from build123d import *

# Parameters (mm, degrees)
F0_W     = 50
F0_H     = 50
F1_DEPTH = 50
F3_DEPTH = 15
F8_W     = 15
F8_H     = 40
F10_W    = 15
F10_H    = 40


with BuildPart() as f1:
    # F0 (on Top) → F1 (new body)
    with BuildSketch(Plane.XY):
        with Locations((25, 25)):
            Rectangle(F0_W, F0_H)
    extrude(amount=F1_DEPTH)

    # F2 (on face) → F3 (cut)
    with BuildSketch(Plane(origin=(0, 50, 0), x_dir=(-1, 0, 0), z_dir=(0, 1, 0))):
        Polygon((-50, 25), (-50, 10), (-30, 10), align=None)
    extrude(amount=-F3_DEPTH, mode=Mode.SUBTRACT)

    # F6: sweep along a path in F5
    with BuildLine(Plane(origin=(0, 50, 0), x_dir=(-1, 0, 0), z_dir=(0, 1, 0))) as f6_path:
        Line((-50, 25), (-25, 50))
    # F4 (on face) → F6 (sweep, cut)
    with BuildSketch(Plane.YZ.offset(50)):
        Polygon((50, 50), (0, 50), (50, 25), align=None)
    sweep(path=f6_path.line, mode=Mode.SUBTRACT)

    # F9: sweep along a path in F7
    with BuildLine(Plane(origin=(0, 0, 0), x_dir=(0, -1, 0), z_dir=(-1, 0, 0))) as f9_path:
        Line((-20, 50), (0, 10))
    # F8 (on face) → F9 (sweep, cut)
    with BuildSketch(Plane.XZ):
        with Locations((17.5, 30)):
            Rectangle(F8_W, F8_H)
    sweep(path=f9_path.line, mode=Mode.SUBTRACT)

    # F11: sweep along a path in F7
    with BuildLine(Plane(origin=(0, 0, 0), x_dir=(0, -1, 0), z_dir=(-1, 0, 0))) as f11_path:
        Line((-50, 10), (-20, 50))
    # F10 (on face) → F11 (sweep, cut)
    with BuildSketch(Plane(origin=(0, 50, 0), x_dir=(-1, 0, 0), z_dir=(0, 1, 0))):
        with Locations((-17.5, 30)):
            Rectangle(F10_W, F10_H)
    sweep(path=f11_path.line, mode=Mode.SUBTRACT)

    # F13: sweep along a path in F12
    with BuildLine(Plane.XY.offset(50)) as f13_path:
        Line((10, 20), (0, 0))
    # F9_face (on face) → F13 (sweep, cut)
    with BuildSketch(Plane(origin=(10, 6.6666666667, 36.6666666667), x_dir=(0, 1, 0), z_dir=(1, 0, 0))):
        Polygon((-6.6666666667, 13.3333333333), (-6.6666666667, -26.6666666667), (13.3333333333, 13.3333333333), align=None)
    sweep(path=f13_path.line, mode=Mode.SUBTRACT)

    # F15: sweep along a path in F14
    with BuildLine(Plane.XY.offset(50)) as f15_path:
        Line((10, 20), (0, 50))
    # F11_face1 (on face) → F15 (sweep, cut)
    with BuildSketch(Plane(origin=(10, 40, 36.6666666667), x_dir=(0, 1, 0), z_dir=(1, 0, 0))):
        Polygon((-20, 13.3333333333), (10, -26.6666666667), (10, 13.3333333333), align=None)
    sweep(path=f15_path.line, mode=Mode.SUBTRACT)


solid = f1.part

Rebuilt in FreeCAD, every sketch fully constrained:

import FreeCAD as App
import Part
import Sketcher

V = App.Vector
Q = App.Units.Quantity


def add_polygon(sketch, points):
    """Adds a closed chain of lines whose ends are joined by coincident constraints."""
    first, n = sketch.GeometryCount, len(points)
    for a, b in zip(points, points[1:] + points[:1]):
        sketch.addGeometry(Part.LineSegment(App.Vector(*a, 0), App.Vector(*b, 0)), False)
    for i in range(n):
        sketch.addConstraint(Sketcher.Constraint("Coincident", first + i, 2, first + (i + 1) % n, 1))

doc = App.newDocument("Part")
params = doc.addObject("Spreadsheet::Sheet", "Params")
for row, (alias, value) in enumerate([
    ("sketch1_width", "50 mm"),
    ("pad1_length", "50 mm"),
    ("sketch2_width", "20 mm"),
    ("sketch2_height", "15 mm"),
    ("pocket1_length", "15 mm"),
    ("sketch3_width", "50 mm"),
    ("sketch3_height", "25 mm"),
    ("sketch5_width", "15 mm"),
    ("sketch5_height", "40 mm"),
    ("sketch7_width", "15 mm"),
    ("sketch7_height", "40 mm"),
    ("sketch8_width", "50 mm"),
    ("sketch9_width", "20 mm"),
    ("sketch9_height", "40 mm"),
    ("sketch11_width", "30 mm"),
    ("sketch11_height", "40 mm"),
], start=1):
    params.set(f"A{row}", alias)
    params.set(f"B{row}", "=" + value)
    params.setAlias(f"B{row}", alias)

body = doc.addObject("PartDesign::Body", "Body")

# Sketch on XY plane
sketch1 = doc.addObject("Sketcher::SketchObject", "Sketch")
body.addObject(sketch1)
sketch1.AttachmentSupport = (doc.XY_Plane, [""])
sketch1.MapMode = "FlatFace"
add_polygon(sketch1, [(0, 50), (0, 0), (50, 0), (50, 50)])  # lines 0-3
sketch1.addConstraint(Sketcher.Constraint("Vertical", 0))
sketch1.addConstraint(Sketcher.Constraint("Horizontal", 1))
sketch1.addConstraint(Sketcher.Constraint("Vertical", 2))
sketch1.addConstraint(Sketcher.Constraint("Horizontal", 3))
sketch1.addConstraint(Sketcher.Constraint("Coincident", 0, 2, -1, 1))
sketch1.addConstraint(Sketcher.Constraint("Equal", 3, 0))
sketch1.addConstraint(Sketcher.Constraint("DistanceX", 1, 1, 1, 2, Q("50 mm")))
sketch1.setExpression("Constraints[10]", "Params.sketch1_width")
pad1 = doc.addObject("PartDesign::Pad", "Pad")
body.addObject(pad1)
pad1.Profile = sketch1
pad1.setExpression("Length", "Params.pad1_length")

# Sketch on XZ plane
sketch2 = doc.addObject("Sketcher::SketchObject", "Sketch001")
body.addObject(sketch2)
sketch2.AttachmentSupport = (doc.XZ_Plane, [""])
sketch2.MapMode = "FlatFace"
sketch2.AttachmentOffset = App.Placement(V(0, 0, -50), App.Rotation())
add_polygon(sketch2, [(50, 25), (50, 10), (30, 10)])  # lines 0-2
sketch2.addConstraint(Sketcher.Constraint("Vertical", 0))
sketch2.addConstraint(Sketcher.Constraint("Horizontal", 1))
sketch2.addConstraint(Sketcher.Constraint("DistanceX", 1, 2, 1, 1, Q("20 mm")))
sketch2.addConstraint(Sketcher.Constraint("DistanceY", 0, 2, 0, 1, Q("15 mm")))
sketch2.addConstraint(Sketcher.Constraint("DistanceX", -1, 1, 0, 2, Q("50 mm")))
sketch2.addConstraint(Sketcher.Constraint("DistanceY", -1, 1, 0, 2, Q("10 mm")))
sketch2.setExpression("Constraints[5]", "Params.sketch2_width")
sketch2.setExpression("Constraints[6]", "Params.sketch2_height")
pocket1 = doc.addObject("PartDesign::Pocket", "Pocket")
body.addObject(pocket1)
pocket1.Profile = sketch2
pocket1.setExpression("Length", "Params.pocket1_length")
pocket1.Reversed = True

# Sketch on YZ plane
sketch3 = doc.addObject("Sketcher::SketchObject", "Sketch002")
body.addObject(sketch3)
sketch3.AttachmentSupport = (doc.YZ_Plane, [""])
sketch3.MapMode = "FlatFace"
sketch3.AttachmentOffset = App.Placement(V(0, 0, 50), App.Rotation())
add_polygon(sketch3, [(50, 50), (0, 50), (50, 25)])  # lines 0-2
sketch3.addConstraint(Sketcher.Constraint("Horizontal", 0))
sketch3.addConstraint(Sketcher.Constraint("Vertical", 2))
sketch3.addConstraint(Sketcher.Constraint("PointOnObject", 0, 2, -2))
sketch3.addConstraint(Sketcher.Constraint("DistanceX", 0, 2, 0, 1, Q("50 mm")))
sketch3.addConstraint(Sketcher.Constraint("DistanceY", 2, 1, 2, 2, Q("25 mm")))
sketch3.addConstraint(Sketcher.Constraint("DistanceY", -1, 1, 0, 2, Q("50 mm")))
sketch3.setExpression("Constraints[6]", "Params.sketch3_width")
sketch3.setExpression("Constraints[7]", "Params.sketch3_height")

# Sketch on an angled plane
sketch4 = doc.addObject("Sketcher::SketchObject", "Sketch003")
body.addObject(sketch4)
sketch4.Placement = App.Placement(V(37.5, 0, 37.5), App.Rotation(V(-0.707106781, 0, 0.707106781), V(0, 0.999999999, 0), V(-0.707106781, 0, -0.707106781), "ZXY"))
sketch4.addGeometry(Part.LineSegment(V(-18, 50, 0), V(18, 50, 0)), False)
sketch4.addConstraint(Sketcher.Constraint("Horizontal", 0))
sketch4.addConstraint(Sketcher.Constraint("DistanceY", -1, 1, 0, 1, Q("50 mm")))
sketch4.addConstraint(Sketcher.Constraint("DistanceX", 0, 1, 0, 2, Q("35.355339 mm")))
sketch4.addConstraint(Sketcher.Constraint("DistanceX", 0, 1, -1, 1, Q("17.67767 mm")))
doc.recompute()

subtractivepipe = doc.addObject("PartDesign::SubtractivePipe", "SubtractivePipe")
body.addObject(subtractivepipe)
subtractivepipe.Profile = sketch3
subtractivepipe.Spine = (sketch4, ["Edge1"])

# Sketch on XZ plane
sketch5 = doc.addObject("Sketcher::SketchObject", "Sketch004")
body.addObject(sketch5)
sketch5.AttachmentSupport = (doc.XZ_Plane, [""])
sketch5.MapMode = "FlatFace"
add_polygon(sketch5, [(10, 50), (10, 10), (25, 10), (25, 50)])  # lines 0-3
sketch5.addConstraint(Sketcher.Constraint("Vertical", 0))
sketch5.addConstraint(Sketcher.Constraint("Horizontal", 1))
sketch5.addConstraint(Sketcher.Constraint("Vertical", 2))
sketch5.addConstraint(Sketcher.Constraint("Horizontal", 3))
sketch5.addConstraint(Sketcher.Constraint("DistanceX", 1, 1, 1, 2, Q("15 mm")))
sketch5.addConstraint(Sketcher.Constraint("DistanceY", 0, 2, 0, 1, Q("40 mm")))
sketch5.addConstraint(Sketcher.Constraint("DistanceX", -1, 1, 0, 2, Q("10 mm")))
sketch5.addConstraint(Sketcher.Constraint("DistanceY", -1, 1, 0, 2, Q("10 mm")))
sketch5.setExpression("Constraints[8]", "Params.sketch5_width")
sketch5.setExpression("Constraints[9]", "Params.sketch5_height")

# Sketch on an angled plane
sketch6 = doc.addObject("Sketcher::SketchObject", "Sketch005")
body.addObject(sketch6)
sketch6.Placement = App.Placement(V(0, -4, 2), App.Rotation(V(0, 0.447213595, 0.894427191), V(1, 0, 0), V(0, 0.894427191, -0.447213595), "ZXY"))
sketch6.addGeometry(Part.LineSegment(V(54, 0, 0), V(9, 0, 0)), False)
sketch6.addConstraint(Sketcher.Constraint("Horizontal", 0))
sketch6.addConstraint(Sketcher.Constraint("PointOnObject", 0, 1, -1))
sketch6.addConstraint(Sketcher.Constraint("DistanceX", 0, 2, 0, 1, Q("44.72136 mm")))
sketch6.addConstraint(Sketcher.Constraint("DistanceX", -1, 1, 0, 1, Q("53.665631 mm")))
doc.recompute()

subtractivepipe2 = doc.addObject("PartDesign::SubtractivePipe", "SubtractivePipe001")
body.addObject(subtractivepipe2)
subtractivepipe2.Profile = sketch5
subtractivepipe2.Spine = (sketch6, ["Edge1"])

# Sketch on XZ plane
sketch7 = doc.addObject("Sketcher::SketchObject", "Sketch006")
body.addObject(sketch7)
sketch7.AttachmentSupport = (doc.XZ_Plane, [""])
sketch7.MapMode = "FlatFace"
sketch7.AttachmentOffset = App.Placement(V(0, 0, -50), App.Rotation())
add_polygon(sketch7, [(25, 50), (25, 10), (10, 10), (10, 50)])  # lines 0-3
sketch7.addConstraint(Sketcher.Constraint("Vertical", 0))
sketch7.addConstraint(Sketcher.Constraint("Horizontal", 1))
sketch7.addConstraint(Sketcher.Constraint("Vertical", 2))
sketch7.addConstraint(Sketcher.Constraint("Horizontal", 3))
sketch7.addConstraint(Sketcher.Constraint("DistanceX", 1, 2, 1, 1, Q("15 mm")))
sketch7.addConstraint(Sketcher.Constraint("DistanceY", 0, 2, 0, 1, Q("40 mm")))
sketch7.addConstraint(Sketcher.Constraint("DistanceX", -1, 1, 0, 2, Q("25 mm")))
sketch7.addConstraint(Sketcher.Constraint("DistanceY", -1, 1, 0, 2, Q("10 mm")))
sketch7.setExpression("Constraints[8]", "Params.sketch7_width")
sketch7.setExpression("Constraints[9]", "Params.sketch7_height")

# Sketch on an angled plane
sketch8 = doc.addObject("Sketcher::SketchObject", "Sketch007")
body.addObject(sketch8)
sketch8.Placement = App.Placement(V(0, 36.8, 27.6), App.Rotation(V(0, -0.6, 0.8), V(1, 0, 0), V(0, 0.8, 0.6), "ZXY"))
sketch8.addGeometry(Part.LineSegment(V(-22, 0, 0), V(28, 0, 0)), False)
sketch8.addConstraint(Sketcher.Constraint("Horizontal", 0))
sketch8.addConstraint(Sketcher.Constraint("PointOnObject", 0, 1, -1))
sketch8.addConstraint(Sketcher.Constraint("DistanceX", 0, 1, 0, 2, Q("50 mm")))
sketch8.addConstraint(Sketcher.Constraint("DistanceX", 0, 1, -1, 1, Q("22 mm")))
sketch8.setExpression("Constraints[2]", "Params.sketch8_width")
doc.recompute()

subtractivepipe3 = doc.addObject("PartDesign::SubtractivePipe", "SubtractivePipe002")
body.addObject(subtractivepipe3)
subtractivepipe3.Profile = sketch7
subtractivepipe3.Spine = (sketch8, ["Edge1"])

# Sketch on YZ plane
sketch9 = doc.addObject("Sketcher::SketchObject", "Sketch008")
body.addObject(sketch9)
sketch9.AttachmentSupport = (doc.YZ_Plane, [""])
sketch9.MapMode = "FlatFace"
sketch9.AttachmentOffset = App.Placement(V(0, 0, 10), App.Rotation())
add_polygon(sketch9, [(0, 50), (0, 10), (20, 50)])  # lines 0-2
sketch9.addConstraint(Sketcher.Constraint("Vertical", 0))
sketch9.addConstraint(Sketcher.Constraint("Horizontal", 2))
sketch9.addConstraint(Sketcher.Constraint("PointOnObject", 0, 2, -2))
sketch9.addConstraint(Sketcher.Constraint("DistanceX", 2, 2, 2, 1, Q("20 mm")))
sketch9.addConstraint(Sketcher.Constraint("DistanceY", 0, 2, 0, 1, Q("40 mm")))
sketch9.addConstraint(Sketcher.Constraint("DistanceY", -1, 1, 0, 2, Q("10 mm")))
sketch9.setExpression("Constraints[6]", "Params.sketch9_width")
sketch9.setExpression("Constraints[7]", "Params.sketch9_height")

# Sketch on an angled plane
sketch10 = doc.addObject("Sketcher::SketchObject", "Sketch009")
body.addObject(sketch10)
sketch10.Placement = App.Placement(V(0, 0, 0), App.Rotation(V(-0.447213595, -0.894427191, 0), V(0, 0, 1), V(-0.894427191, 0.447213595, 0), "ZXY"))
sketch10.addGeometry(Part.LineSegment(V(-22, 50, 0), V(0, 50, 0)), False)
sketch10.addConstraint(Sketcher.Constraint("Horizontal", 0))
sketch10.addConstraint(Sketcher.Constraint("PointOnObject", 0, 2, -2))
sketch10.addConstraint(Sketcher.Constraint("DistanceY", -1, 1, 0, 1, Q("50 mm")))
sketch10.addConstraint(Sketcher.Constraint("DistanceX", 0, 1, 0, 2, Q("22.36068 mm")))
doc.recompute()

subtractivepipe4 = doc.addObject("PartDesign::SubtractivePipe", "SubtractivePipe003")
body.addObject(subtractivepipe4)
subtractivepipe4.Profile = sketch9
subtractivepipe4.Spine = (sketch10, ["Edge1"])

# Sketch on YZ plane
sketch11 = doc.addObject("Sketcher::SketchObject", "Sketch010")
body.addObject(sketch11)
sketch11.AttachmentSupport = (doc.YZ_Plane, [""])
sketch11.MapMode = "FlatFace"
sketch11.AttachmentOffset = App.Placement(V(0, 0, 10), App.Rotation())
add_polygon(sketch11, [(20, 50), (50, 10), (50, 50)])  # lines 0-2
sketch11.addConstraint(Sketcher.Constraint("Vertical", 1))
sketch11.addConstraint(Sketcher.Constraint("Horizontal", 2))
sketch11.addConstraint(Sketcher.Constraint("DistanceX", 2, 2, 2, 1, Q("30 mm")))
sketch11.addConstraint(Sketcher.Constraint("DistanceY", 1, 1, 1, 2, Q("40 mm")))
sketch11.addConstraint(Sketcher.Constraint("DistanceX", -1, 1, 0, 2, Q("50 mm")))
sketch11.addConstraint(Sketcher.Constraint("DistanceY", -1, 1, 0, 2, Q("10 mm")))
sketch11.setExpression("Constraints[5]", "Params.sketch11_width")
sketch11.setExpression("Constraints[6]", "Params.sketch11_height")

# Sketch on an angled plane
sketch12 = doc.addObject("Sketcher::SketchObject", "Sketch011")
body.addObject(sketch12)
sketch12.Placement = App.Placement(V(15, 5, 0), App.Rotation(V(-0.316227766, 0.948683298, 0), V(0, 0, 1), V(0.948683298, 0.316227766, 0), "ZXY"))
sketch12.addGeometry(Part.LineSegment(V(16, 50, 0), V(47, 50, 0)), False)
sketch12.addConstraint(Sketcher.Constraint("Horizontal", 0))
sketch12.addConstraint(Sketcher.Constraint("DistanceY", -1, 1, 0, 1, Q("50 mm")))
sketch12.addConstraint(Sketcher.Constraint("DistanceX", 0, 1, 0, 2, Q("31.622777 mm")))
sketch12.addConstraint(Sketcher.Constraint("DistanceX", -1, 1, 0, 1, Q("15.811388 mm")))
doc.recompute()

subtractivepipe5 = doc.addObject("PartDesign::SubtractivePipe", "SubtractivePipe004")
body.addObject(subtractivepipe5)
subtractivepipe5.Profile = sketch11
subtractivepipe5.Spine = (sketch12, ["Edge1"])

doc.recompute()
